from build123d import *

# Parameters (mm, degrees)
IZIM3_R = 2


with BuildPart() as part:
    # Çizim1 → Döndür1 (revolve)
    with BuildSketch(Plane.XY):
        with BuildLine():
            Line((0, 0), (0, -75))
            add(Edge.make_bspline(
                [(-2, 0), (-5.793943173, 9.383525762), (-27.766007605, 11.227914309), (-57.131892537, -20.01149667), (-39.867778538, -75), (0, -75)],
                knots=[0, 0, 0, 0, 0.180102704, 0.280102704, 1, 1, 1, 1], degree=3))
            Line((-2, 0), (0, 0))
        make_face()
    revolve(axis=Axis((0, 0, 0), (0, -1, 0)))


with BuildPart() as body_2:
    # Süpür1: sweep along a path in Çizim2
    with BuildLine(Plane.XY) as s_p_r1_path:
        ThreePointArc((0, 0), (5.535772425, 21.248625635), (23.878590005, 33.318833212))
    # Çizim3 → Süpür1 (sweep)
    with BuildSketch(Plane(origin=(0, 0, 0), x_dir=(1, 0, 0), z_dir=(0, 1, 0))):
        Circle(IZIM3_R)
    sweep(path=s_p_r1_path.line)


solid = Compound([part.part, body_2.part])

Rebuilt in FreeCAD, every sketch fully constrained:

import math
import FreeCAD as App
import Part
import Sketcher
from FreeCAD import Vector
Q = App.Units.Quantity

doc = App.newDocument("Part")
body = doc.addObject("PartDesign::Body", "Body")

sketch1 = body.newObject("Sketcher::SketchObject", "Sketch")
sketch1.AttachmentSupport = (doc.getObject("XY_Plane"), [""])
sketch1.MapMode = "FlatFace"
sketch1.addGeometry(Part.LineSegment(Vector(0, -75, 0), Vector(0, 0, 0)), False)
sketch1.addGeometry(Part.LineSegment(Vector(0, 0, 0), Vector(-2, 0, 0)), False)
sketch1.addGeometry(Part.BSplineCurve([Vector(-2, 0, 0), Vector(-5.793943, 9.383526, 0), Vector(-27.766008, 11.227914, 0), Vector(-57.131893, -20.011497, 0), Vector(-39.867779, -75, 0), Vector(0, -75, 0)], [4, 1, 1, 4], [0, 0.180102704, 0.280102704, 1], False, 3, [1, 1, 1, 1, 1, 1], False), False)
sketch1.addConstraint(Sketcher.Constraint("Block", 2))
sketch1.addConstraint(Sketcher.Constraint("Coincident", 0, 2, 1, 1))
sketch1.addConstraint(Sketcher.Constraint("Coincident", 1, 2, 2, 1))
sketch1.addConstraint(Sketcher.Constraint("Coincident", 2, 2, 0, 1))
sketch1.addConstraint(Sketcher.Constraint("Vertical", 0))
sketch1.addConstraint(Sketcher.Constraint("Horizontal", 1))
revolution = body.newObject("PartDesign::Revolution", "Revolution")
revolution.Profile = sketch1
revolution.ReferenceAxis = (sketch1, ["V_Axis"])
revolution.Angle = 360
body2 = doc.addObject("PartDesign::Body", "Body001")

sketch2 = body2.newObject("Sketcher::SketchObject", "Sketch001")
sketch2.AttachmentSupport = (doc.getObject("XZ_Plane001"), [""])
sketch2.MapMode = "FlatFace"
sketch2.addGeometry(Part.Circle(Vector(0, 0, 0), Vector(0, 0, 1), 2), False)
sketch2.addConstraint(Sketcher.Constraint("Coincident", 0, 3, -1, 1))
sketch2.addConstraint(Sketcher.Constraint("Diameter", 0, Q("4 mm")))

sketch3 = body2.newObject("Sketcher::SketchObject", "Sketch002")
sketch3.AttachmentSupport = (doc.getObject("XY_Plane001"), [""])
sketch3.MapMode = "FlatFace"
sketch3.addGeometry(Part.ArcOfCircle(Part.Circle(Vector(30, 3, 0), Vector(0, 0, 1), 31), math.radians(102), math.radians(186)), False)
sketch3.addConstraint(Sketcher.Constraint("Coincident", 0, 2, -1, 1))
sketch3.addConstraint(Sketcher.Constraint("Radius", 0, Q("30.600215 mm")))
sketch3.addConstraint(Sketcher.Constraint("DistanceX", -1, 1, 0, 3, Q("30.408119 mm")))
sketch3.addConstraint(Sketcher.Constraint("DistanceX", -1, 1, 0, 1, Q("23.87859 mm")))
doc.recompute()

additivepipe = body2.newObject("PartDesign::AdditivePipe", "AdditivePipe")
additivepipe.Profile = sketch2
additivepipe.Spine = (sketch3, ["Edge1"])

doc.recompute()
